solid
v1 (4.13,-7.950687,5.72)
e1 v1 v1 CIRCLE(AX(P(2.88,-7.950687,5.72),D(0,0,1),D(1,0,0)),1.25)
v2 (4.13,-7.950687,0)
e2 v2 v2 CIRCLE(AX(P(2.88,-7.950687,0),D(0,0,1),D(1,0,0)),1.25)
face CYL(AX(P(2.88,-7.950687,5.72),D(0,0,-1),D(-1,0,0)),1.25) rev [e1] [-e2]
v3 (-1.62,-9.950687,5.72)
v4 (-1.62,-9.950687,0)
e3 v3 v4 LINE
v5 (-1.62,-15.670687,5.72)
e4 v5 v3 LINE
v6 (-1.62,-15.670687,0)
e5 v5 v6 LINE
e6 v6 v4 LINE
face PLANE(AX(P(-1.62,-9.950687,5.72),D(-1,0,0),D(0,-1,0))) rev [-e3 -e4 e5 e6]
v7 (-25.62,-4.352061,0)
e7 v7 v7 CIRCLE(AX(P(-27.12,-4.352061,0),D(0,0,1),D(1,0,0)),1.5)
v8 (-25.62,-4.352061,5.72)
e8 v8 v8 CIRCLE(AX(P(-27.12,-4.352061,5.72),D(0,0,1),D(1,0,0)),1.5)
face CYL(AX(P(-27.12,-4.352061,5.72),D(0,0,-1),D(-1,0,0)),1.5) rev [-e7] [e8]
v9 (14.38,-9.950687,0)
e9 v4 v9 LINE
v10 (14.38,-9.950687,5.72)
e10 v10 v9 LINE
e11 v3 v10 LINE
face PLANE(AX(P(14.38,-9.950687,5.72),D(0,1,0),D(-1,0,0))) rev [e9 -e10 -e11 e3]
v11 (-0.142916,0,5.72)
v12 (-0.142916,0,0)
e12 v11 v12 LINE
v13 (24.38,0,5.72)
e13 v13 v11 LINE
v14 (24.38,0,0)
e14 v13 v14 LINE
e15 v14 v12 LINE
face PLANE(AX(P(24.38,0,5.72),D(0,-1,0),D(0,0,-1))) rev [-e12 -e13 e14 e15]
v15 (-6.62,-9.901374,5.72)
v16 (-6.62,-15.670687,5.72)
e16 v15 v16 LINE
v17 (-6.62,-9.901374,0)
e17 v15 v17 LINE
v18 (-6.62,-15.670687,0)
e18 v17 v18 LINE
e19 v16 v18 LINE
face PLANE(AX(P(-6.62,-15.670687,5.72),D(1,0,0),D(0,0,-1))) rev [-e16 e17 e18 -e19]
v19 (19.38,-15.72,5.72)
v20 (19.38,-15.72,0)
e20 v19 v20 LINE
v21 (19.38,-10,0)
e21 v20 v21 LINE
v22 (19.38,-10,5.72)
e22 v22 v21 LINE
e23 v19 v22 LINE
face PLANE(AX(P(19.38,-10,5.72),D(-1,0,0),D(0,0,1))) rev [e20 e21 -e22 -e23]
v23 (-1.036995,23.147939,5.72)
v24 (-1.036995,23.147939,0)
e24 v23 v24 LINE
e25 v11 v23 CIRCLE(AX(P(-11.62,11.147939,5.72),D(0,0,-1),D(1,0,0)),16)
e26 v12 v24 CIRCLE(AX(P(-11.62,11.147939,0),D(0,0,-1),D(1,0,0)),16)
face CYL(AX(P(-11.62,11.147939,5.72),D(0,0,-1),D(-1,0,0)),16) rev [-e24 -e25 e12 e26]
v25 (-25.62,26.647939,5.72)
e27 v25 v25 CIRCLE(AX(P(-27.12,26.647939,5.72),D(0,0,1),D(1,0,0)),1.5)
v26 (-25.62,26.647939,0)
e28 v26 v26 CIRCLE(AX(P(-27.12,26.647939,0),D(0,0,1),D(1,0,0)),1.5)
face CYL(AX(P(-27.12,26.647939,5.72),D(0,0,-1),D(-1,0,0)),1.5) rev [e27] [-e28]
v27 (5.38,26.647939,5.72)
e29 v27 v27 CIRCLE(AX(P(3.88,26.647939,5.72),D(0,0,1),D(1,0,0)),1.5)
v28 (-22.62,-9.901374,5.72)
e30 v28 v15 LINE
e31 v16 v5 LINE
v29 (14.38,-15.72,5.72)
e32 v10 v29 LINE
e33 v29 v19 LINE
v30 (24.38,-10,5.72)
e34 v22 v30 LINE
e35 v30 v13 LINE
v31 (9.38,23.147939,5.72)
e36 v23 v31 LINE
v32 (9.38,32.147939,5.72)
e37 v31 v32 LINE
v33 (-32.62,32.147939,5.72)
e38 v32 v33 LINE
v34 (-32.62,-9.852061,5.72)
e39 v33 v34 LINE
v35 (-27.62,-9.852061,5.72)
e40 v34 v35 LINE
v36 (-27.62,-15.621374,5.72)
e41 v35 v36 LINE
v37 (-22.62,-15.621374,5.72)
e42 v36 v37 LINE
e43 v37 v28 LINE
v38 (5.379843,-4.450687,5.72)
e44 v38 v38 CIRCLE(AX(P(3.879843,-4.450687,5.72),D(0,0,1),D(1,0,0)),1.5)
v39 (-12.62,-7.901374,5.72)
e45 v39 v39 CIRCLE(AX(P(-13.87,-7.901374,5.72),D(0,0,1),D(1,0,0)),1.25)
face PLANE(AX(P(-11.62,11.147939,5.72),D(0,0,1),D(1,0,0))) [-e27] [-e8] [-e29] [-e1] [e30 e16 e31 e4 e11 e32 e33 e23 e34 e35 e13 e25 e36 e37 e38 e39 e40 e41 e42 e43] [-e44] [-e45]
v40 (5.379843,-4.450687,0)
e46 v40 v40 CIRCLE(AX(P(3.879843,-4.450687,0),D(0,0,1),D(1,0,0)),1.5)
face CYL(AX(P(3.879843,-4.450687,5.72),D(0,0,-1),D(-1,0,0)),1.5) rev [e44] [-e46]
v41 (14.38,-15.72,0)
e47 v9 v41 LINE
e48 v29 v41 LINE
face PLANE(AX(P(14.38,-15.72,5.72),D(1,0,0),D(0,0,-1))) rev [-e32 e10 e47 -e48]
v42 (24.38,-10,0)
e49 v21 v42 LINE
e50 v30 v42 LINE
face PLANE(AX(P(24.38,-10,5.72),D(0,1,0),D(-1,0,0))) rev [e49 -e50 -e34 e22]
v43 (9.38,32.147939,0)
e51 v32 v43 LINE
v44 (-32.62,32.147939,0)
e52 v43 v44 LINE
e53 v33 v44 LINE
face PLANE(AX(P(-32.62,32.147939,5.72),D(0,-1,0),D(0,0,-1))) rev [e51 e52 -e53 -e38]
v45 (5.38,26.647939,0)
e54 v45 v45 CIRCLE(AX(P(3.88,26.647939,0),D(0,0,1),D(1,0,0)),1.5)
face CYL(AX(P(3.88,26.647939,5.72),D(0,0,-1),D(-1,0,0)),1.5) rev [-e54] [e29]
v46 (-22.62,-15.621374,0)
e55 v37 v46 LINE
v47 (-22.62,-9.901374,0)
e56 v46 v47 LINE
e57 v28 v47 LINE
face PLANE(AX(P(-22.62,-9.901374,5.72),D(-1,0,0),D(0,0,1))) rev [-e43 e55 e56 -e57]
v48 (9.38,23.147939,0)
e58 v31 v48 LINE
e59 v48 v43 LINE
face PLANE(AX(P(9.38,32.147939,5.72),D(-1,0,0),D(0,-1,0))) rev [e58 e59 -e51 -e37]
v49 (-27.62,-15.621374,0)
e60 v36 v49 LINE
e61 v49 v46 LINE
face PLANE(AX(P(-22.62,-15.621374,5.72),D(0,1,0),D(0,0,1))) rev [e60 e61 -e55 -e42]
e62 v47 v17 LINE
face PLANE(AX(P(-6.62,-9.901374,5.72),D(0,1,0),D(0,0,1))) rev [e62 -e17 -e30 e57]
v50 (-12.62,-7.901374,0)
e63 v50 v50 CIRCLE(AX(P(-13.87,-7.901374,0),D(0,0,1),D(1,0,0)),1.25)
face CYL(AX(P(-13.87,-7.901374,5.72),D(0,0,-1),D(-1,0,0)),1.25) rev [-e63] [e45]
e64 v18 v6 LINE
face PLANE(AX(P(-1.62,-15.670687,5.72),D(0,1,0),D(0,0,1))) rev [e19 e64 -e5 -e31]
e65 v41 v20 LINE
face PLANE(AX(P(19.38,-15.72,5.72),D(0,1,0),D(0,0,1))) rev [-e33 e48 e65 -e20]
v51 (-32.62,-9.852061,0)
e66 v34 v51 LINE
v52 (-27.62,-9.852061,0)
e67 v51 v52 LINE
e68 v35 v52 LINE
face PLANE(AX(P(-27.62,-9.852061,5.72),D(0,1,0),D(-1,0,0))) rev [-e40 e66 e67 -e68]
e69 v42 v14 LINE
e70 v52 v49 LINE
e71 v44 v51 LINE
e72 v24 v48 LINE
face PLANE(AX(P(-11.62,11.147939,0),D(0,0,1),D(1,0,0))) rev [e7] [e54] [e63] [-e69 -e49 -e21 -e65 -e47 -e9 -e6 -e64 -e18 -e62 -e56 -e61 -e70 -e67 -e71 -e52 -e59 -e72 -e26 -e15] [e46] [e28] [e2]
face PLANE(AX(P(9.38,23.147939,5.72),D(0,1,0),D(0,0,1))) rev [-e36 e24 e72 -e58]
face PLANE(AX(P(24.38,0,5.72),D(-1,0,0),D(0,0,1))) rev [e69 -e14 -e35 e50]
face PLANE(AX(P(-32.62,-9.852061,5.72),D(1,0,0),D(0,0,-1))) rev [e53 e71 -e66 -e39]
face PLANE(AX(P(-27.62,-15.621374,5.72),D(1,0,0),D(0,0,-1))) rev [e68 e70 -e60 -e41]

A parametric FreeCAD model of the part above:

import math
import FreeCAD as App
import Part
import Sketcher

V = App.Vector
Q = App.Units.Quantity

doc = App.newDocument("Part")
body = doc.addObject("PartDesign::Body", "Body")

# Sketch on XY plane
sketch1 = body.newObject("Sketcher::SketchObject", "Sketch")
sketch1.AttachmentSupport = (doc.getObject("XY_Plane"), [""])
sketch1.MapMode = "FlatFace"
sketch1.addGeometry([
    Part.LineSegment(V(-1, 23.1, 0), V(9.4, 23.1, 0)),  # 0
    Part.LineSegment(V(9.4, 23.1, 0), V(9.4, 32.1, 0)),  # 1
    Part.LineSegment(V(9.4, 32.1, 0), V(-32.6, 32.1, 0)),  # 2
    Part.LineSegment(V(-32.6, 32.1, 0), V(-32.6, -9.9, 0)),  # 3
    Part.LineSegment(V(-32.6, -9.9, 0), V(-27.6, -9.9, 0)),  # 4
    Part.LineSegment(V(-27.6, -9.9, 0), V(-27.6, -15.6, 0)),  # 5
    Part.LineSegment(V(-27.6, -15.6, 0), V(-22.6, -15.6, 0)),  # 6
    Part.LineSegment(V(-22.6, -15.6, 0), V(-22.6, -9.9, 0)),  # 7
    Part.LineSegment(V(-22.6, -9.9, 0), V(-6.6, -9.9, 0)),  # 8
    Part.LineSegment(V(-6.6, -9.9, 0), V(-6.6, -15.7, 0)),  # 9
    Part.LineSegment(V(-6.6, -15.7, 0), V(-1.6, -15.7, 0)),  # 10
    Part.LineSegment(V(-1.6, -15.7, 0), V(-1.6, -10, 0)),  # 11
    Part.LineSegment(V(-1.6, -10, 0), V(14.4, -10, 0)),  # 12
    Part.LineSegment(V(14.4, -10, 0), V(14.4, -15.7, 0)),  # 13
    Part.LineSegment(V(14.4, -15.7, 0), V(19.4, -15.7, 0)),  # 14
    Part.LineSegment(V(19.4, -15.7, 0), V(19.4, -10, 0)),  # 15
    Part.LineSegment(V(19.4, -10, 0), V(24.4, -10, 0)),  # 16
    Part.LineSegment(V(24.4, -10, 0), V(24.4, 0, 0)),  # 17
    Part.LineSegment(V(24.4, 0, 0), V(-0.1, 0, 0)),  # 18
    Part.ArcOfCircle(Part.Circle(V(-11.6, 11.1, 0), V(0, 0, 1), 16), math.radians(49), math.radians(316)),  # 19
    Part.Circle(V(2.9, -8, 0), V(0, 0, 1), 1.2),  # 20
    Part.Circle(V(3.9, -4.5, 0), V(0, 0, 1), 1.5),  # 21
    Part.Circle(V(-13.9, -7.9, 0), V(0, 0, 1), 1.2),  # 22
    Part.Circle(V(-27.1, -4.4, 0), V(0, 0, 1), 1.5),  # 23
    Part.Circle(V(3.9, 26.6, 0), V(0, 0, 1), 1.5),  # 24
    Part.Circle(V(-27.1, 26.6, 0), V(0, 0, 1), 1.5),  # 25
], False)
sketch1.addConstraint([
    Sketcher.Constraint("Coincident", 0, 2, 1, 1),
    Sketcher.Constraint("Coincident", 1, 2, 2, 1),
    Sketcher.Constraint("Coincident", 2, 2, 3, 1),
    Sketcher.Constraint("Coincident", 3, 2, 4, 1),
    Sketcher.Constraint("Coincident", 4, 2, 5, 1),
    Sketcher.Constraint("Coincident", 5, 2, 6, 1),
    Sketcher.Constraint("Coincident", 6, 2, 7, 1),
    Sketcher.Constraint("Coincident", 7, 2, 8, 1),
    Sketcher.Constraint("Coincident", 8, 2, 9, 1),
    Sketcher.Constraint("Coincident", 9, 2, 10, 1),
    Sketcher.Constraint("Coincident", 10, 2, 11, 1),
    Sketcher.Constraint("Coincident", 11, 2, 12, 1),
    Sketcher.Constraint("Coincident", 12, 2, 13, 1),
    Sketcher.Constraint("Coincident", 13, 2, 14, 1),
    Sketcher.Constraint("Coincident", 14, 2, 15, 1),
    Sketcher.Constraint("Coincident", 15, 2, 16, 1),
    Sketcher.Constraint("Coincident", 16, 2, 17, 1),
    Sketcher.Constraint("Coincident", 17, 2, 18, 1),
    Sketcher.Constraint("Coincident", 18, 2, 19, 2),
    Sketcher.Constraint("Coincident", 19, 1, 0, 1),
    Sketcher.Constraint("Horizontal", 0),
    Sketcher.Constraint("Vertical", 1),
    Sketcher.Constraint("Horizontal", 2),
    Sketcher.Constraint("Vertical", 3),
    Sketcher.Constraint("Horizontal", 4),
    Sketcher.Constraint("Vertical", 5),
    Sketcher.Constraint("Horizontal", 6),
    Sketcher.Constraint("Vertical", 7),
    Sketcher.Constraint("Horizontal", 8),
    Sketcher.Constraint("Vertical", 9),
    Sketcher.Constraint("Horizontal", 10),
    Sketcher.Constraint("Vertical", 11),
    Sketcher.Constraint("Horizontal", 12),
    Sketcher.Constraint("Vertical", 13),
    Sketcher.Constraint("Horizontal", 14),
    Sketcher.Constraint("Vertical", 15),
    Sketcher.Constraint("Horizontal", 16),
    Sketcher.Constraint("Vertical", 17),
    Sketcher.Constraint("Horizontal", 18),
    Sketcher.Constraint("Equal", 20, 22),
    Sketcher.Constraint("Equal", 21, 23),
    Sketcher.Constraint("Equal", 23, 24),
    Sketcher.Constraint("Equal", 24, 25),
    Sketcher.Constraint("PointOnObject", 17, 2, -1),
    Sketcher.Constraint("Horizontal", 24, 3, 25, 3),
    Sketcher.Constraint("Vertical", 23, 3, 25, 3),
    Sketcher.Constraint("Equal", 4, 6),
    Sketcher.Constraint("Equal", 6, 10),
    Sketcher.Constraint("Equal", 8, 12),
    Sketcher.Constraint("Equal", 10, 14),
    Sketcher.Constraint("Equal", 14, 16),
    Sketcher.Constraint("Equal", 2, 3),
    Sketcher.Constraint("Equal", 5, 9),
    Sketcher.Constraint("Equal", 7, 11),
    Sketcher.Constraint("Equal", 9, 13),
    Sketcher.Constraint("Equal", 11, 15),
    Sketcher.Constraint("Diameter", 21, Q("3 mm")),
    Sketcher.Constraint("Radius", 19, Q("16 mm")),
    Sketcher.Constraint("Diameter", 20, Q("2.5 mm")),
    Sketcher.Constraint("DistanceX", 2, 2, 2, 1, Q("42 mm")),
    Sketcher.Constraint("DistanceX", 4, 1, 4, 2, Q("5 mm")),
    Sketcher.Constraint("DistanceX", 8, 1, 8, 2, Q("16 mm")),
    Sketcher.Constraint("DistanceY", 1, 1, 1, 2, Q("9 mm")),
    Sketcher.Constraint("DistanceY", 17, 1, 17, 2, Q("10 mm")),
    Sketcher.Constraint("DistanceX", 23, 3, 20, 3, Q("30 mm")),
    Sketcher.Constraint("DistanceX", 20, 3, 24, 3, Q("1 mm")),
    Sketcher.Constraint("DistanceY", 23, 3, 24, 3, Q("31 mm")),
    Sketcher.Constraint("DistanceX", 19, 3, 0, 2, Q("21 mm")),
    Sketcher.Constraint("DistanceY", 19, 3, 0, 2, Q("12 mm")),
    Sketcher.Constraint("DistanceY", 7, 2, 22, 3, Q("2 mm")),
    Sketcher.Constraint("DistanceY", 11, 2, 20, 3, Q("2 mm")),
    Sketcher.Constraint("DistanceY", 7, 1, 7, 2, Q("5.72 mm")),
    Sketcher.Constraint("DistanceX", 19, 3, 20, 3, Q("14.5 mm")),
    Sketcher.Constraint("DistanceY", 20, 3, 21, 3, Q("3.5 mm")),
    Sketcher.Constraint("DistanceY", 23, 3, 19, 3, Q("15.5 mm")),
    Sketcher.Constraint("DistanceX", 19, 3, -1, 1, Q("11.62 mm")),
    Sketcher.Constraint("DistanceX", 22, 3, -1, 1, Q("13.87 mm")),
    Sketcher.Constraint("DistanceX", 18, 2, 18, 1, Q("24.522916 mm")),
    Sketcher.Constraint("DistanceX", 18, 2, 21, 3, Q("4.022759 mm")),
])
pad1 = body.newObject("PartDesign::Pad", "Pad")
pad1.Profile = sketch1
pad1.Length = 5.72

doc.recompute()
